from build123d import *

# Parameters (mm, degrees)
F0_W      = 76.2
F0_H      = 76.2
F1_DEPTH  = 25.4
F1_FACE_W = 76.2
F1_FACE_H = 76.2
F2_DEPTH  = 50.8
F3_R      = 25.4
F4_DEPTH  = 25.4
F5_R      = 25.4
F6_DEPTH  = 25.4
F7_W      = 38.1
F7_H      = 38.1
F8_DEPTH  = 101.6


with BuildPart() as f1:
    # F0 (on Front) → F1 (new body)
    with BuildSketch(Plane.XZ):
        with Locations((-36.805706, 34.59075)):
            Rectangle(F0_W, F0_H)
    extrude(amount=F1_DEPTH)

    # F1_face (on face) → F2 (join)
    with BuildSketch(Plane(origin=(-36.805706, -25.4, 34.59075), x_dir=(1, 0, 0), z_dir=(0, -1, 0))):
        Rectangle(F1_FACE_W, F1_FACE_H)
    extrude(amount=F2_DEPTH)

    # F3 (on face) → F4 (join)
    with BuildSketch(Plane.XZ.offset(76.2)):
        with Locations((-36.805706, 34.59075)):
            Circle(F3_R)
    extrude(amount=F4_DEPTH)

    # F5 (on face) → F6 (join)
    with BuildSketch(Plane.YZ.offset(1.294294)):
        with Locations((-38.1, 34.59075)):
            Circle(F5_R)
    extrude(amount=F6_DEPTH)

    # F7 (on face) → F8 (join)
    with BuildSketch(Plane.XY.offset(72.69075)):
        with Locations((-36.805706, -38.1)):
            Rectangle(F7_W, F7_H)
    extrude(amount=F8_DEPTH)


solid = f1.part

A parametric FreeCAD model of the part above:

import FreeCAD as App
import Part
import Sketcher

V = App.Vector
Q = App.Units.Quantity

doc = App.newDocument("Part")
params = doc.addObject("Spreadsheet::Sheet", "Params")
for row, (alias, value) in enumerate([
    ("sketch1_width", "3 in"),
    ("pad1_length", "1 in"),
    ("sketch2_width", "3 in"),
    ("pad2_length", "2 in"),
    ("sketch3_diameter", "2 in"),
    ("pad3_length", "1 in"),
    ("sketch4_diameter", "2 in"),
    ("pad4_length", "1 in"),
    ("sketch5_width", "1.5 in"),
    ("pad5_length", "4 in"),
], start=1):
    params.set(f"A{row}", alias)
    params.set(f"B{row}", "=" + value)
    params.setAlias(f"B{row}", alias)

body = doc.addObject("PartDesign::Body", "Body")

sketch1 = body.newObject("Sketcher::SketchObject", "Sketch")
sketch1.AttachmentSupport = (doc.getObject("XZ_Plane"), [""])
sketch1.MapMode = "FlatFace"
sketch1.addGeometry(Part.LineSegment(V(-75, 73, 0), V(-75, -4, 0)), False)
sketch1.addGeometry(Part.LineSegment(V(-75, -4, 0), V(1, -4, 0)), False)
sketch1.addGeometry(Part.LineSegment(V(1, -4, 0), V(1, 73, 0)), False)
sketch1.addGeometry(Part.LineSegment(V(1, 73, 0), V(-75, 73, 0)), False)
sketch1.addConstraint(Sketcher.Constraint("Coincident", 0, 2, 1, 1))
sketch1.addConstraint(Sketcher.Constraint("Coincident", 1, 2, 2, 1))
sketch1.addConstraint(Sketcher.Constraint("Coincident", 2, 2, 3, 1))
sketch1.addConstraint(Sketcher.Constraint("Coincident", 3, 2, 0, 1))
sketch1.addConstraint(Sketcher.Constraint("Vertical", 0))
sketch1.addConstraint(Sketcher.Constraint("Horizontal", 1))
sketch1.addConstraint(Sketcher.Constraint("Vertical", 2))
sketch1.addConstraint(Sketcher.Constraint("Horizontal", 3))
sketch1.addConstraint(Sketcher.Constraint("Equal", 3, 0))
sketch1.addConstraint(Sketcher.Constraint("DistanceX", 1, 1, 1, 2, Q("3 in")))
sketch1.addConstraint(Sketcher.Constraint("DistanceY", 0, 2, -1, 1, 3.50925))
sketch1.addConstraint(Sketcher.Constraint("DistanceX", 0, 2, -1, 1, 74.905706))
sketch1.setExpression("Constraints[9]", "Params.sketch1_width")
pad1 = body.newObject("PartDesign::Pad", "Pad")
pad1.Profile = sketch1
pad1.setExpression("Length", "Params.pad1_length")

sketch2 = body.newObject("Sketcher::SketchObject", "Sketch001")
sketch2.AttachmentSupport = (doc.getObject("XZ_Plane"), [""])
sketch2.MapMode = "FlatFace"
sketch2.AttachmentOffset = App.Placement(V(0, 0, 1 * 25.4), App.Rotation())
sketch2.addGeometry(Part.LineSegment(V(-75, 73, 0), V(-75, -4, 0)), False)
sketch2.addGeometry(Part.LineSegment(V(-75, -4, 0), V(1, -4, 0)), False)
sketch2.addGeometry(Part.LineSegment(V(1, -4, 0), V(1, 73, 0)), False)
sketch2.addGeometry(Part.LineSegment(V(1, 73, 0), V(-75, 73, 0)), False)
sketch2.addConstraint(Sketcher.Constraint("Coincident", 0, 2, 1, 1))
sketch2.addConstraint(Sketcher.Constraint("Coincident", 1, 2, 2, 1))
sketch2.addConstraint(Sketcher.Constraint("Coincident", 2, 2, 3, 1))
sketch2.addConstraint(Sketcher.Constraint("Coincident", 3, 2, 0, 1))
sketch2.addConstraint(Sketcher.Constraint("Vertical", 0))
sketch2.addConstraint(Sketcher.Constraint("Horizontal", 1))
sketch2.addConstraint(Sketcher.Constraint("Vertical", 2))
sketch2.addConstraint(Sketcher.Constraint("Horizontal", 3))
sketch2.addConstraint(Sketcher.Constraint("Equal", 3, 0))
sketch2.addConstraint(Sketcher.Constraint("DistanceX", 1, 1, 1, 2, Q("3 in")))
sketch2.addConstraint(Sketcher.Constraint("DistanceY", 0, 2, -1, 1, 3.50925))
sketch2.addConstraint(Sketcher.Constraint("DistanceX", 0, 2, -1, 1, 74.905706))
sketch2.setExpression("Constraints[9]", "Params.sketch2_width")
pad2 = body.newObject("PartDesign::Pad", "Pad001")
pad2.Profile = sketch2
pad2.setExpression("Length", "Params.pad2_length")

sketch3 = body.newObject("Sketcher::SketchObject", "Sketch002")
sketch3.AttachmentSupport = (doc.getObject("XZ_Plane"), [""])
sketch3.MapMode = "FlatFace"
sketch3.AttachmentOffset = App.Placement(V(0, 0, 3 * 25.4), App.Rotation())
sketch3.addGeometry(Part.Circle(V(-37, 35, 0), V(0, 0, 1), 25), False)
sketch3.addConstraint(Sketcher.Constraint("Diameter", 0, Q("2 in")))
sketch3.addConstraint(Sketcher.Constraint("DistanceY", -1, 1, 0, 3, 34.59075))
sketch3.addConstraint(Sketcher.Constraint("DistanceX", 0, 3, -1, 1, 36.805706))
sketch3.setExpression("Constraints[0]", "Params.sketch3_diameter")
pad3 = body.newObject("PartDesign::Pad", "Pad002")
pad3.Profile = sketch3
pad3.setExpression("Length", "Params.pad3_length")

sketch4 = body.newObject("Sketcher::SketchObject", "Sketch003")
sketch4.AttachmentSupport = (doc.getObject("YZ_Plane"), [""])
sketch4.MapMode = "FlatFace"
sketch4.AttachmentOffset = App.Placement(V(0, 0, 1.294294), App.Rotation())
sketch4.addGeometry(Part.Circle(V(-38, 35, 0), V(0, 0, 1), 25), False)
sketch4.addConstraint(Sketcher.Constraint("Diameter", 0, Q("2 in")))
sketch4.addConstraint(Sketcher.Constraint("DistanceX", 0, 3, -1, 1, Q("1.5 in")))
sketch4.addConstraint(Sketcher.Constraint("DistanceY", -1, 1, 0, 3, 34.59075))
sketch4.setExpression("Constraints[0]", "Params.sketch4_diameter")
pad4 = body.newObject("PartDesign::Pad", "Pad003")
pad4.Profile = sketch4
pad4.setExpression("Length", "Params.pad4_length")

sketch5 = body.newObject("Sketcher::SketchObject", "Sketch004")
sketch5.AttachmentSupport = (doc.getObject("XY_Plane"), [""])
sketch5.MapMode = "FlatFace"
sketch5.AttachmentOffset = App.Placement(V(0, 0, 72.69075), App.Rotation())
sketch5.addGeometry(Part.LineSegment(V(-56, -19, 0), V(-56, -57, 0)), False)
sketch5.addGeometry(Part.LineSegment(V(-56, -57, 0), V(-18, -57, 0)), False)
sketch5.addGeometry(Part.LineSegment(V(-18, -57, 0), V(-18, -19, 0)), False)
sketch5.addGeometry(Part.LineSegment(V(-18, -19, 0), V(-56, -19, 0)), False)
sketch5.addConstraint(Sketcher.Constraint("Coincident", 0, 2, 1, 1))
sketch5.addConstraint(Sketcher.Constraint("Coincident", 1, 2, 2, 1))
sketch5.addConstraint(Sketcher.Constraint("Coincident", 2, 2, 3, 1))
sketch5.addConstraint(Sketcher.Constraint("Coincident", 3, 2, 0, 1))
sketch5.addConstraint(Sketcher.Constraint("Vertical", 0))
sketch5.addConstraint(Sketcher.Constraint("Horizontal", 1))
sketch5.addConstraint(Sketcher.Constraint("Vertical", 2))
sketch5.addConstraint(Sketcher.Constraint("Horizontal", 3))
sketch5.addConstraint(Sketcher.Constraint("Equal", 3, 0))
sketch5.addConstraint(Sketcher.Constraint("DistanceX", 1, 1, 1, 2, Q("1.5 in")))
sketch5.addConstraint(Sketcher.Constraint("DistanceY", 0, 2, -1, 1, Q("2.25 in")))
sketch5.addConstraint(Sketcher.Constraint("DistanceX", 0, 2, -1, 1, 55.855706))
sketch5.setExpression("Constraints[9]", "Params.sketch5_width")
pad5 = body.newObject("PartDesign::Pad", "Pad004")
pad5.Profile = sketch5
pad5.setExpression("Length", "Params.pad5_length")

doc.recompute()
